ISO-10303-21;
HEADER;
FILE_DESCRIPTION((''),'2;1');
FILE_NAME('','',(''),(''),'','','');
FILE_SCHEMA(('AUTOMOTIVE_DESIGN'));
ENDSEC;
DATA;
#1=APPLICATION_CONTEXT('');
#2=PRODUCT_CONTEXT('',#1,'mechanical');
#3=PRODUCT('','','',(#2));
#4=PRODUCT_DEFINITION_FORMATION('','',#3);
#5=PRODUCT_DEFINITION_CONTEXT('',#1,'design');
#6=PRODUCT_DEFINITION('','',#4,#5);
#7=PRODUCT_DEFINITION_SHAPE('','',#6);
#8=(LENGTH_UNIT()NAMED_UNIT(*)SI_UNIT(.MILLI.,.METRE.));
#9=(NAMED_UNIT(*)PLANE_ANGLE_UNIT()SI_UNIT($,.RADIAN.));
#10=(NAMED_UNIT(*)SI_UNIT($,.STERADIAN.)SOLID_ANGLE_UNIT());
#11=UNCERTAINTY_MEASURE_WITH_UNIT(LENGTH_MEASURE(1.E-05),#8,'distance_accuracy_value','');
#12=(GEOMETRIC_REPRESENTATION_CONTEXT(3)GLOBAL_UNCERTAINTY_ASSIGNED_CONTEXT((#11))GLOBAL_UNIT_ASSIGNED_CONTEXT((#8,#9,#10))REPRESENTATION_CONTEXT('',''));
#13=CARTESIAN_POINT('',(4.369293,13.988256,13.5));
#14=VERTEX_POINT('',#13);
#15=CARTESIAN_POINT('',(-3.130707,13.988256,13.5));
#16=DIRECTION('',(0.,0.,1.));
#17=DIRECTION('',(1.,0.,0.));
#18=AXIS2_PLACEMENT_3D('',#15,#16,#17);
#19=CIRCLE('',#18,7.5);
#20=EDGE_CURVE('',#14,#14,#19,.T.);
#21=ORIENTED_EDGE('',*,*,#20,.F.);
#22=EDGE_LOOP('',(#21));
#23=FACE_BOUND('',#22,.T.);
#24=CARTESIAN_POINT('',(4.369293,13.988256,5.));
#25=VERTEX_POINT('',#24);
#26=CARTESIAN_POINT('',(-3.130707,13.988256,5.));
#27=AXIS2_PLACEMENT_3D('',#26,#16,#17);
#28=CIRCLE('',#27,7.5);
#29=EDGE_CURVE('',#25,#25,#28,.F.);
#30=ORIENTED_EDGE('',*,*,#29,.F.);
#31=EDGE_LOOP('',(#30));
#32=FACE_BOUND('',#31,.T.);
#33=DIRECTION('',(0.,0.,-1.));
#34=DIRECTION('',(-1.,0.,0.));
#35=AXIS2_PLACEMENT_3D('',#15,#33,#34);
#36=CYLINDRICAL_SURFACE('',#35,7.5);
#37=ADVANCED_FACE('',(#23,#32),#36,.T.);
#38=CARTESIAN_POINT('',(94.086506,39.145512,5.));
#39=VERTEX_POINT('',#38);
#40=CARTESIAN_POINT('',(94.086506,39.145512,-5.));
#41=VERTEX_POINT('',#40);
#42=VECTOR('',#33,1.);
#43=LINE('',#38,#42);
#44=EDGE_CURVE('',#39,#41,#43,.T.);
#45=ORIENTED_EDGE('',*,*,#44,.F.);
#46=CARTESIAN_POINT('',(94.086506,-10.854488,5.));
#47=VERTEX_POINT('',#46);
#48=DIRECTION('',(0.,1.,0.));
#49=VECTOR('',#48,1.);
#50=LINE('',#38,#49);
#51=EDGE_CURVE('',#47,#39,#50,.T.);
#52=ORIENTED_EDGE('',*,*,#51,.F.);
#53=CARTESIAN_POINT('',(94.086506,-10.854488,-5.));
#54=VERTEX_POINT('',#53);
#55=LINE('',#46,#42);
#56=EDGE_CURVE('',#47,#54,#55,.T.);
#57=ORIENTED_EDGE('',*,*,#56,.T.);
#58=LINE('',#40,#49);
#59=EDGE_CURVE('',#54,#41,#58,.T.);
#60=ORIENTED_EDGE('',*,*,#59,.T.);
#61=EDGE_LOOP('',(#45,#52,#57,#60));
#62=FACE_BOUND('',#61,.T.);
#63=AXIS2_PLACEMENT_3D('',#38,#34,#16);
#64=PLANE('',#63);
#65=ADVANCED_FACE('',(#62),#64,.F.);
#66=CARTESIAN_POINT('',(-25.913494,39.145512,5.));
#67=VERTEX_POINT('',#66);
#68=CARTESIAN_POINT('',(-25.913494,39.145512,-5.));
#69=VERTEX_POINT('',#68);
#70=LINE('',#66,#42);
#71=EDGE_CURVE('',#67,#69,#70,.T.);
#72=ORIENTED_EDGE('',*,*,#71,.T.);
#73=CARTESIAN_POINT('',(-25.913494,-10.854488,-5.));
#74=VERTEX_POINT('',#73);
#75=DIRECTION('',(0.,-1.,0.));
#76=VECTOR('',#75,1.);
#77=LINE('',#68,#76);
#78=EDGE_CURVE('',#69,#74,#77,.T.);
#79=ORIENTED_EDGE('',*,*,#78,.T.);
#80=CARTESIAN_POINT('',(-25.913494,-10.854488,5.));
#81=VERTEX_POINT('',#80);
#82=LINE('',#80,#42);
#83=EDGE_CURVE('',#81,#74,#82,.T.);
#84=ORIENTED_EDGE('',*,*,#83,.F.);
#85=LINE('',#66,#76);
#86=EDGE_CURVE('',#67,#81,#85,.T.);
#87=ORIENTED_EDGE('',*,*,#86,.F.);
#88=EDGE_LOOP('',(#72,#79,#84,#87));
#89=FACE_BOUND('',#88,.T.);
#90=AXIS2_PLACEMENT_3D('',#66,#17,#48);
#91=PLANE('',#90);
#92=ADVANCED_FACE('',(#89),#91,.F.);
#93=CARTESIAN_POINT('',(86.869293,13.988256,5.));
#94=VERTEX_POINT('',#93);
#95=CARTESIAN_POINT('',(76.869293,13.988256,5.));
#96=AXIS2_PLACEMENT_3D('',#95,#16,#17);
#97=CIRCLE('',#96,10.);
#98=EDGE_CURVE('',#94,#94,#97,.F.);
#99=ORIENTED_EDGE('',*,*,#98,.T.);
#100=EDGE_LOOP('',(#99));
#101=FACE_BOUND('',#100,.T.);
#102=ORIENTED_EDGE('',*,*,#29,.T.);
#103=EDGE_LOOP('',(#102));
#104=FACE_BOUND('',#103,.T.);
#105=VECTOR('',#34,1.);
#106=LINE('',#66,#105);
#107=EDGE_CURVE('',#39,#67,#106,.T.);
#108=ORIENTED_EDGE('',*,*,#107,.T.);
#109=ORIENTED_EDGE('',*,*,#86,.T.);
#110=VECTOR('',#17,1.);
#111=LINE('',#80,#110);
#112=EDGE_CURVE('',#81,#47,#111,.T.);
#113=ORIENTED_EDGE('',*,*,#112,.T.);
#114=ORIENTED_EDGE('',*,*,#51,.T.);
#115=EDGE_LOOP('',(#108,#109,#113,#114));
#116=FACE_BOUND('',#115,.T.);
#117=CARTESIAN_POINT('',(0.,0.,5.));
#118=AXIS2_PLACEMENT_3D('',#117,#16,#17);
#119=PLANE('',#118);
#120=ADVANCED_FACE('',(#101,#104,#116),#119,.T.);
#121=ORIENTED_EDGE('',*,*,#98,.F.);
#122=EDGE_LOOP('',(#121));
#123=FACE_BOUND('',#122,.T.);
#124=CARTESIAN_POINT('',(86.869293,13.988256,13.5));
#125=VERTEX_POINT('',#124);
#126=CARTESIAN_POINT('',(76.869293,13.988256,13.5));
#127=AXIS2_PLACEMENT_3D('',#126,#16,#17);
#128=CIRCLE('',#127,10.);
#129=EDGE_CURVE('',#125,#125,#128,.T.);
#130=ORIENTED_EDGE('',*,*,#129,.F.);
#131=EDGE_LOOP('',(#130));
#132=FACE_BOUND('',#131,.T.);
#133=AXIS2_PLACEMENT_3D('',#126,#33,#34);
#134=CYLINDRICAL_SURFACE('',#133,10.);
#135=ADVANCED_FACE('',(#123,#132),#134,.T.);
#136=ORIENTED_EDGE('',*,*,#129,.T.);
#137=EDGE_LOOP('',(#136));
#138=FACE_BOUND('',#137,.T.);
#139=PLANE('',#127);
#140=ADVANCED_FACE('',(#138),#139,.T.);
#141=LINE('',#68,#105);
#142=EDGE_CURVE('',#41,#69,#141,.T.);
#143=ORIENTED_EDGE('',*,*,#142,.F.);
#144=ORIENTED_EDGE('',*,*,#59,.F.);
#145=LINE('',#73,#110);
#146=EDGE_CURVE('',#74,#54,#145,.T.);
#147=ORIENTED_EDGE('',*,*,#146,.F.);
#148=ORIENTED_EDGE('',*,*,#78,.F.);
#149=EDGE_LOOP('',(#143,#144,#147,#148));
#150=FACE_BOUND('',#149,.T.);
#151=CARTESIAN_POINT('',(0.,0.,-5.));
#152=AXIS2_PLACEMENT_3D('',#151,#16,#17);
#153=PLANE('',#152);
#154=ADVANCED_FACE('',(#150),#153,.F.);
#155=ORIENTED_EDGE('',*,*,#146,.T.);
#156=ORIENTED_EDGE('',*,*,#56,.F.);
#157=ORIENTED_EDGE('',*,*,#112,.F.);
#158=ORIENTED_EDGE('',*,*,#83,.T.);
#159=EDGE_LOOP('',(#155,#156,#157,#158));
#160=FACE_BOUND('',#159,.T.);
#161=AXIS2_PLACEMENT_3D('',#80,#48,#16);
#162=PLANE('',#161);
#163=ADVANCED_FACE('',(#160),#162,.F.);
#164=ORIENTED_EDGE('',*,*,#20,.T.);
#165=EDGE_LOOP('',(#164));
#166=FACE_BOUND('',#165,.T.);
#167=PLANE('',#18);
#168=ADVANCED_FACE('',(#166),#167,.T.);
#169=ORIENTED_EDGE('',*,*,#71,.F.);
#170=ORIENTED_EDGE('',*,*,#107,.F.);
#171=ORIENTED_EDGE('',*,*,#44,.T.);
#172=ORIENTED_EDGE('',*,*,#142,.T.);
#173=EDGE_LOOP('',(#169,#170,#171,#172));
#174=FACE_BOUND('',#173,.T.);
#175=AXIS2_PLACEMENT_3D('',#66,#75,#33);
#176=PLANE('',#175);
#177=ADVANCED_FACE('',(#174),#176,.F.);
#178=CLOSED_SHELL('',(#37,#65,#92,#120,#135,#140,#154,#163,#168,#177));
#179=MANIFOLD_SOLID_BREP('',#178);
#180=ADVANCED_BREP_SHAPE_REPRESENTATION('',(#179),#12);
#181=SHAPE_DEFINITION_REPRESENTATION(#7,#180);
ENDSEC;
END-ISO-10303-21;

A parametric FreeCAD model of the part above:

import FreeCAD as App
import Part
import Sketcher
from FreeCAD import Vector

doc = App.newDocument("Part")
body = doc.addObject("PartDesign::Body", "Body")

# Sketch on XY plane
sketch1 = body.newObject("Sketcher::SketchObject", "Sketch")
sketch1.AttachmentSupport = (doc.getObject("XY_Plane"), [""])
sketch1.MapMode = "FlatFace"
sketch1.addGeometry(Part.LineSegment(Vector(-25.913494, 39.145512, 0), Vector(-25.913494, -10.854488, 0)), False)
sketch1.addGeometry(Part.LineSegment(Vector(-25.913494, -10.854488, 0), Vector(94.086506, -10.854488, 0)), False)
sketch1.addGeometry(Part.LineSegment(Vector(94.086506, -10.854488, 0), Vector(94.086506, 39.145512, 0)), False)
sketch1.addGeometry(Part.LineSegment(Vector(94.086506, 39.145512, 0), Vector(-25.913494, 39.145512, 0)), False)
sketch1.addConstraint(Sketcher.Constraint("Coincident", 0, 2, 1, 1))
sketch1.addConstraint(Sketcher.Constraint("Coincident", 1, 2, 2, 1))
sketch1.addConstraint(Sketcher.Constraint("Coincident", 2, 2, 3, 1))
sketch1.addConstraint(Sketcher.Constraint("Coincident", 3, 2, 0, 1))
sketch1.addConstraint(Sketcher.Constraint("Vertical", 0))
sketch1.addConstraint(Sketcher.Constraint("Horizontal", 1))
sketch1.addConstraint(Sketcher.Constraint("Vertical", 2))
sketch1.addConstraint(Sketcher.Constraint("Horizontal", 3))
sketch1.addConstraint(Sketcher.Constraint("DistanceX", 1, 1, 1, 2, 120.0))
sketch1.addConstraint(Sketcher.Constraint("DistanceY", 0, 2, 0, 1, 50.0))
sketch1.addConstraint(Sketcher.Constraint("DistanceY", 0, 2, -1, 1, 10.854488))
sketch1.addConstraint(Sketcher.Constraint("DistanceX", 0, 2, -1, 1, 25.913494))
pad1 = body.newObject("PartDesign::Pad", "Pad")
pad1.Profile = sketch1
pad1.Length = 10
pad1.Midplane = True

# Sketch on XY plane
sketch2 = body.newObject("Sketcher::SketchObject", "Sketch001")
sketch2.AttachmentSupport = (doc.getObject("XY_Plane"), [""])
sketch2.MapMode = "FlatFace"
sketch2.AttachmentOffset = App.Placement(Vector(0, 0, 5), App.Rotation())
sketch2.addGeometry(Part.Circle(Vector(-3.130707, 13.988256, 0), Vector(0, 0, 1), 7.5), False)
sketch2.addGeometry(Part.Circle(Vector(76.869293, 13.988256, 0), Vector(0, 0, 1), 10), False)
sketch2.addConstraint(Sketcher.Constraint("Horizontal", 0, 3, 1, 3))
sketch2.addConstraint(Sketcher.Constraint("Diameter", 0, 15.0))
sketch2.addConstraint(Sketcher.Constraint("Diameter", 1, 20.0))
sketch2.addConstraint(Sketcher.Constraint("DistanceX", 0, 3, 1, 3, 80.0))
sketch2.addConstraint(Sketcher.Constraint("DistanceX", 0, 3, -1, 1, 3.130707))
sketch2.addConstraint(Sketcher.Constraint("DistanceY", -1, 1, 0, 3, 13.988256))
pad2 = body.newObject("PartDesign::Pad", "Pad001")
pad2.Profile = sketch2
pad2.Length = 17
pad2.Midplane = True

doc.recompute()
